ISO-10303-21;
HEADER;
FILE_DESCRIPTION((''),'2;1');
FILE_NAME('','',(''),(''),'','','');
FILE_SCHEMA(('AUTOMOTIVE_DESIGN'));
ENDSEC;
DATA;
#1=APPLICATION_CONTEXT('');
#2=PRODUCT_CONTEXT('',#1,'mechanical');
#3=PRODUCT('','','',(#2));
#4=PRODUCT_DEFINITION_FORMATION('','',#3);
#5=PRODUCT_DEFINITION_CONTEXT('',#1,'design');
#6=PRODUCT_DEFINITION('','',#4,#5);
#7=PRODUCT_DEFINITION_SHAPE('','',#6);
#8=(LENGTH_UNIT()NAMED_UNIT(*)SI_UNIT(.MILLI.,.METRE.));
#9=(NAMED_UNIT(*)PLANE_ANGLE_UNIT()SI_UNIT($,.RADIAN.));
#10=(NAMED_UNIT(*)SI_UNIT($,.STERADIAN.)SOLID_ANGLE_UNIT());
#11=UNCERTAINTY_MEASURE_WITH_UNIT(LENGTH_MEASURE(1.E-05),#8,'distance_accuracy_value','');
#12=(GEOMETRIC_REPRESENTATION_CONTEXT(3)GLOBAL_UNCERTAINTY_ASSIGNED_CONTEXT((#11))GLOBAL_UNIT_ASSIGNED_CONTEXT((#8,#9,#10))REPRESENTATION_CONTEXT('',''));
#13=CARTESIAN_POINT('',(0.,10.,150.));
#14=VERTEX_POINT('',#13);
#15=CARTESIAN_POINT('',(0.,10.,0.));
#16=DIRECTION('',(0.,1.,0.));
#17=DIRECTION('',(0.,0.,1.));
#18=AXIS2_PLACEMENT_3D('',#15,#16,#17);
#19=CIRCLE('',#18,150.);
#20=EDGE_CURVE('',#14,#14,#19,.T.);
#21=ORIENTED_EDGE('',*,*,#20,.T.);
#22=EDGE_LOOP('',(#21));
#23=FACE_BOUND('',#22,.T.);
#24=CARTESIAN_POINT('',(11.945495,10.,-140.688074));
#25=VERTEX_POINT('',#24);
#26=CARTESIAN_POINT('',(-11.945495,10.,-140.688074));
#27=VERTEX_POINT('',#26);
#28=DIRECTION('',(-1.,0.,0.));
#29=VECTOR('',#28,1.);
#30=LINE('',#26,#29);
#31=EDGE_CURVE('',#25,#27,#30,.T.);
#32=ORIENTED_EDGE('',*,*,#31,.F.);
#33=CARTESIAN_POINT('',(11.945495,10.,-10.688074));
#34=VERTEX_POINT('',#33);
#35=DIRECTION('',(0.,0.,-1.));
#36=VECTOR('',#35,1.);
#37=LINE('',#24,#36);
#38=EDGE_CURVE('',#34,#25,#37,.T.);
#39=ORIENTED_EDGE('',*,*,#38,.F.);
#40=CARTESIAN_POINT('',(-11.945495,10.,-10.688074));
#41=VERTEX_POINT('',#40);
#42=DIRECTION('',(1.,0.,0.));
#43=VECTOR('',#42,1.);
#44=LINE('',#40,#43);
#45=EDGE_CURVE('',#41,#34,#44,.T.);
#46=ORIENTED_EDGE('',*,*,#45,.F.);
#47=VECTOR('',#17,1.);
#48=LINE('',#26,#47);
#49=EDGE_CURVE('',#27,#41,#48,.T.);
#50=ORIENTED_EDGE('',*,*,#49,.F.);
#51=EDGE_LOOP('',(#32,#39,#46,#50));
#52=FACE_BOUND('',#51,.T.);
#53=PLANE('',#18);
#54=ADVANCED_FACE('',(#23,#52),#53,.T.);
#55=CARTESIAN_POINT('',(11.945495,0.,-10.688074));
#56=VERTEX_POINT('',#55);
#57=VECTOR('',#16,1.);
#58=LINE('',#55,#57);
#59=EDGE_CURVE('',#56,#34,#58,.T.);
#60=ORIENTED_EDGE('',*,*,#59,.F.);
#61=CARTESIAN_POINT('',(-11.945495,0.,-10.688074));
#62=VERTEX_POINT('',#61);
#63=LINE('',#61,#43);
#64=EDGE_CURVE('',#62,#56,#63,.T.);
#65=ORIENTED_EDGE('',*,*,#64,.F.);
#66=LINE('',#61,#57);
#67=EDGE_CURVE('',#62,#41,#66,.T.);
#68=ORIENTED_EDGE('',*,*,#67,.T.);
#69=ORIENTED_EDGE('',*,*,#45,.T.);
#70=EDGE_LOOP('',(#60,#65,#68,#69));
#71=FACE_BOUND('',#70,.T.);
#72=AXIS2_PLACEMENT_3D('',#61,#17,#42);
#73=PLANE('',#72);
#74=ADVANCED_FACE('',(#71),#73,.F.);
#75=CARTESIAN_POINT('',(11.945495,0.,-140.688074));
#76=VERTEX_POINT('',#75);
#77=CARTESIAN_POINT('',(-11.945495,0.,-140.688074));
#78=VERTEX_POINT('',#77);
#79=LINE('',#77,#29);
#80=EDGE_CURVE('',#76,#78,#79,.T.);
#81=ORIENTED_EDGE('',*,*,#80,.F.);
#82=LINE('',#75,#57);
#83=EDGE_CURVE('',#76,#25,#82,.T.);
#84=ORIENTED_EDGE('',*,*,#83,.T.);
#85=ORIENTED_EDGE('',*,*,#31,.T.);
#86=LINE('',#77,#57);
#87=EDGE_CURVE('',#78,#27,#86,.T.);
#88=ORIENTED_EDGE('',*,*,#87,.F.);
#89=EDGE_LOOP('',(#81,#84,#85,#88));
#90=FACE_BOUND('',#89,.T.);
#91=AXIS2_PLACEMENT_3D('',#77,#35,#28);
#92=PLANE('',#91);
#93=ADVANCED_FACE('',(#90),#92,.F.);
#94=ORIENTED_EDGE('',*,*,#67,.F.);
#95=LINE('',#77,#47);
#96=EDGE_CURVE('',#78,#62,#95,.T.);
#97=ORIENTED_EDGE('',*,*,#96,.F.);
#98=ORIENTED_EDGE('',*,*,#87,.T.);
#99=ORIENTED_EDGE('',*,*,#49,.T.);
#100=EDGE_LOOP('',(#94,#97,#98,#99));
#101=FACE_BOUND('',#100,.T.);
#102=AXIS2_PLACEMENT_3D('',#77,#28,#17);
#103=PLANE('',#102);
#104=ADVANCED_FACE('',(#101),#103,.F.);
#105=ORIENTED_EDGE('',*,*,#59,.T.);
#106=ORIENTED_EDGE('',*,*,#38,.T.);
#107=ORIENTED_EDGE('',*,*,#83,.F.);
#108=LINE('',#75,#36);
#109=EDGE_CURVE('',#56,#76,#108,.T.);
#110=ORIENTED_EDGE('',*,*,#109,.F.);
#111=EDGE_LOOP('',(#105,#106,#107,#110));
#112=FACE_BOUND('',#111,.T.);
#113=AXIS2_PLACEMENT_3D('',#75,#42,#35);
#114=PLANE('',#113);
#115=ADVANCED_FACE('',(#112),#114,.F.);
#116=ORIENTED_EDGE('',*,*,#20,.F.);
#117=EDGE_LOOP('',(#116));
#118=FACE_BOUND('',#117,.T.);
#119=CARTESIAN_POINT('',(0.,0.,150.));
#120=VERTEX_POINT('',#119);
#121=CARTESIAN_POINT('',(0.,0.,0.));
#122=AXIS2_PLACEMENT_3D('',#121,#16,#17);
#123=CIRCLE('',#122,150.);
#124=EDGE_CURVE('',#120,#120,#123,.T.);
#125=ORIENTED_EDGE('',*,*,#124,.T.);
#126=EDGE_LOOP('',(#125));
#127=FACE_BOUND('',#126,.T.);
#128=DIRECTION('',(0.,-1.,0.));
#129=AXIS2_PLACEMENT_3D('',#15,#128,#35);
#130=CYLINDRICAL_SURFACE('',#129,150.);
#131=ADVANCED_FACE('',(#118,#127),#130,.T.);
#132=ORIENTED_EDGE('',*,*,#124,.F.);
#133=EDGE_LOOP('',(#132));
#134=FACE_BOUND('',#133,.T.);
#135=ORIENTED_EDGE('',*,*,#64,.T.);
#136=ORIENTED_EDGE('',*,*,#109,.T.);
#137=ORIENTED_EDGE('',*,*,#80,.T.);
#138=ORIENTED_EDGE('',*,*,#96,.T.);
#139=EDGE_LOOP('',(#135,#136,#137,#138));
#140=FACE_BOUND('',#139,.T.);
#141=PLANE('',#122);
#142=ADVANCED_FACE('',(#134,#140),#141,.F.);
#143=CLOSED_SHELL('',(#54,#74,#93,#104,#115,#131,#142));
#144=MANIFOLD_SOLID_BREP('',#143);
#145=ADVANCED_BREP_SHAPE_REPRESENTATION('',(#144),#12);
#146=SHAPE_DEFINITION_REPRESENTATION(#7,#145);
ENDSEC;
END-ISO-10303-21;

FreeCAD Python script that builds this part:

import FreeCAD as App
import Part
import Sketcher

V = App.Vector

doc = App.newDocument("Part")
body = doc.addObject("PartDesign::Body", "Body")

# Sketch on XZ plane
sketch1 = doc.addObject("Sketcher::SketchObject", "Sketch")
body.addObject(sketch1)
sketch1.AttachmentSupport = (doc.XZ_Plane, [""])
sketch1.MapMode = "FlatFace"
sketch1.addGeometry(Part.Circle(V(0, 0, 0), V(0, 0, 1), 150), False)
sketch1.addConstraint([
    Sketcher.Constraint("Coincident", 0, 3, -1, 1),
    Sketcher.Constraint("Diameter", 0, 300.0),
])
pad1 = doc.addObject("PartDesign::Pad", "Pad")
body.addObject(pad1)
pad1.Profile = sketch1
pad1.Length = 10
pad1.Reversed = True

# Sketch on XZ plane
sketch2 = doc.addObject("Sketcher::SketchObject", "Sketch001")
body.addObject(sketch2)
sketch2.AttachmentSupport = (doc.XZ_Plane, [""])
sketch2.MapMode = "FlatFace"
sketch2.AttachmentOffset = App.Placement(V(0, 0, -10), App.Rotation())
sketch2.addGeometry([
    Part.LineSegment(V(-12, -141, 0), V(-12, -11, 0)),
    Part.LineSegment(V(-12, -11, 0), V(12, -11, 0)),
    Part.LineSegment(V(12, -11, 0), V(12, -141, 0)),
    Part.LineSegment(V(12, -141, 0), V(-12, -141, 0)),
], False)
sketch2.addConstraint([
    Sketcher.Constraint("Coincident", 0, 2, 1, 1),
    Sketcher.Constraint("Coincident", 1, 2, 2, 1),
    Sketcher.Constraint("Coincident", 2, 2, 3, 1),
    Sketcher.Constraint("Coincident", 3, 2, 0, 1),
    Sketcher.Constraint("Vertical", 0),
    Sketcher.Constraint("Horizontal", 1),
    Sketcher.Constraint("Vertical", 2),
    Sketcher.Constraint("Horizontal", 3),
    Sketcher.Constraint("DistanceY", 0, 1, 0, 2, 130.0),
    Sketcher.Constraint("DistanceX", 1, 1, 1, 2, 23.890989),
    Sketcher.Constraint("DistanceX", 0, 2, -1, 1, 11.945495),
    Sketcher.Constraint("DistanceY", 0, 2, -1, 1, 10.688074),
])
pocket1 = doc.addObject("PartDesign::Pocket", "Pocket")
body.addObject(pocket1)
pocket1.Profile = sketch2
pocket1.Length = 10
pocket1.Reversed = True

doc.recompute()
